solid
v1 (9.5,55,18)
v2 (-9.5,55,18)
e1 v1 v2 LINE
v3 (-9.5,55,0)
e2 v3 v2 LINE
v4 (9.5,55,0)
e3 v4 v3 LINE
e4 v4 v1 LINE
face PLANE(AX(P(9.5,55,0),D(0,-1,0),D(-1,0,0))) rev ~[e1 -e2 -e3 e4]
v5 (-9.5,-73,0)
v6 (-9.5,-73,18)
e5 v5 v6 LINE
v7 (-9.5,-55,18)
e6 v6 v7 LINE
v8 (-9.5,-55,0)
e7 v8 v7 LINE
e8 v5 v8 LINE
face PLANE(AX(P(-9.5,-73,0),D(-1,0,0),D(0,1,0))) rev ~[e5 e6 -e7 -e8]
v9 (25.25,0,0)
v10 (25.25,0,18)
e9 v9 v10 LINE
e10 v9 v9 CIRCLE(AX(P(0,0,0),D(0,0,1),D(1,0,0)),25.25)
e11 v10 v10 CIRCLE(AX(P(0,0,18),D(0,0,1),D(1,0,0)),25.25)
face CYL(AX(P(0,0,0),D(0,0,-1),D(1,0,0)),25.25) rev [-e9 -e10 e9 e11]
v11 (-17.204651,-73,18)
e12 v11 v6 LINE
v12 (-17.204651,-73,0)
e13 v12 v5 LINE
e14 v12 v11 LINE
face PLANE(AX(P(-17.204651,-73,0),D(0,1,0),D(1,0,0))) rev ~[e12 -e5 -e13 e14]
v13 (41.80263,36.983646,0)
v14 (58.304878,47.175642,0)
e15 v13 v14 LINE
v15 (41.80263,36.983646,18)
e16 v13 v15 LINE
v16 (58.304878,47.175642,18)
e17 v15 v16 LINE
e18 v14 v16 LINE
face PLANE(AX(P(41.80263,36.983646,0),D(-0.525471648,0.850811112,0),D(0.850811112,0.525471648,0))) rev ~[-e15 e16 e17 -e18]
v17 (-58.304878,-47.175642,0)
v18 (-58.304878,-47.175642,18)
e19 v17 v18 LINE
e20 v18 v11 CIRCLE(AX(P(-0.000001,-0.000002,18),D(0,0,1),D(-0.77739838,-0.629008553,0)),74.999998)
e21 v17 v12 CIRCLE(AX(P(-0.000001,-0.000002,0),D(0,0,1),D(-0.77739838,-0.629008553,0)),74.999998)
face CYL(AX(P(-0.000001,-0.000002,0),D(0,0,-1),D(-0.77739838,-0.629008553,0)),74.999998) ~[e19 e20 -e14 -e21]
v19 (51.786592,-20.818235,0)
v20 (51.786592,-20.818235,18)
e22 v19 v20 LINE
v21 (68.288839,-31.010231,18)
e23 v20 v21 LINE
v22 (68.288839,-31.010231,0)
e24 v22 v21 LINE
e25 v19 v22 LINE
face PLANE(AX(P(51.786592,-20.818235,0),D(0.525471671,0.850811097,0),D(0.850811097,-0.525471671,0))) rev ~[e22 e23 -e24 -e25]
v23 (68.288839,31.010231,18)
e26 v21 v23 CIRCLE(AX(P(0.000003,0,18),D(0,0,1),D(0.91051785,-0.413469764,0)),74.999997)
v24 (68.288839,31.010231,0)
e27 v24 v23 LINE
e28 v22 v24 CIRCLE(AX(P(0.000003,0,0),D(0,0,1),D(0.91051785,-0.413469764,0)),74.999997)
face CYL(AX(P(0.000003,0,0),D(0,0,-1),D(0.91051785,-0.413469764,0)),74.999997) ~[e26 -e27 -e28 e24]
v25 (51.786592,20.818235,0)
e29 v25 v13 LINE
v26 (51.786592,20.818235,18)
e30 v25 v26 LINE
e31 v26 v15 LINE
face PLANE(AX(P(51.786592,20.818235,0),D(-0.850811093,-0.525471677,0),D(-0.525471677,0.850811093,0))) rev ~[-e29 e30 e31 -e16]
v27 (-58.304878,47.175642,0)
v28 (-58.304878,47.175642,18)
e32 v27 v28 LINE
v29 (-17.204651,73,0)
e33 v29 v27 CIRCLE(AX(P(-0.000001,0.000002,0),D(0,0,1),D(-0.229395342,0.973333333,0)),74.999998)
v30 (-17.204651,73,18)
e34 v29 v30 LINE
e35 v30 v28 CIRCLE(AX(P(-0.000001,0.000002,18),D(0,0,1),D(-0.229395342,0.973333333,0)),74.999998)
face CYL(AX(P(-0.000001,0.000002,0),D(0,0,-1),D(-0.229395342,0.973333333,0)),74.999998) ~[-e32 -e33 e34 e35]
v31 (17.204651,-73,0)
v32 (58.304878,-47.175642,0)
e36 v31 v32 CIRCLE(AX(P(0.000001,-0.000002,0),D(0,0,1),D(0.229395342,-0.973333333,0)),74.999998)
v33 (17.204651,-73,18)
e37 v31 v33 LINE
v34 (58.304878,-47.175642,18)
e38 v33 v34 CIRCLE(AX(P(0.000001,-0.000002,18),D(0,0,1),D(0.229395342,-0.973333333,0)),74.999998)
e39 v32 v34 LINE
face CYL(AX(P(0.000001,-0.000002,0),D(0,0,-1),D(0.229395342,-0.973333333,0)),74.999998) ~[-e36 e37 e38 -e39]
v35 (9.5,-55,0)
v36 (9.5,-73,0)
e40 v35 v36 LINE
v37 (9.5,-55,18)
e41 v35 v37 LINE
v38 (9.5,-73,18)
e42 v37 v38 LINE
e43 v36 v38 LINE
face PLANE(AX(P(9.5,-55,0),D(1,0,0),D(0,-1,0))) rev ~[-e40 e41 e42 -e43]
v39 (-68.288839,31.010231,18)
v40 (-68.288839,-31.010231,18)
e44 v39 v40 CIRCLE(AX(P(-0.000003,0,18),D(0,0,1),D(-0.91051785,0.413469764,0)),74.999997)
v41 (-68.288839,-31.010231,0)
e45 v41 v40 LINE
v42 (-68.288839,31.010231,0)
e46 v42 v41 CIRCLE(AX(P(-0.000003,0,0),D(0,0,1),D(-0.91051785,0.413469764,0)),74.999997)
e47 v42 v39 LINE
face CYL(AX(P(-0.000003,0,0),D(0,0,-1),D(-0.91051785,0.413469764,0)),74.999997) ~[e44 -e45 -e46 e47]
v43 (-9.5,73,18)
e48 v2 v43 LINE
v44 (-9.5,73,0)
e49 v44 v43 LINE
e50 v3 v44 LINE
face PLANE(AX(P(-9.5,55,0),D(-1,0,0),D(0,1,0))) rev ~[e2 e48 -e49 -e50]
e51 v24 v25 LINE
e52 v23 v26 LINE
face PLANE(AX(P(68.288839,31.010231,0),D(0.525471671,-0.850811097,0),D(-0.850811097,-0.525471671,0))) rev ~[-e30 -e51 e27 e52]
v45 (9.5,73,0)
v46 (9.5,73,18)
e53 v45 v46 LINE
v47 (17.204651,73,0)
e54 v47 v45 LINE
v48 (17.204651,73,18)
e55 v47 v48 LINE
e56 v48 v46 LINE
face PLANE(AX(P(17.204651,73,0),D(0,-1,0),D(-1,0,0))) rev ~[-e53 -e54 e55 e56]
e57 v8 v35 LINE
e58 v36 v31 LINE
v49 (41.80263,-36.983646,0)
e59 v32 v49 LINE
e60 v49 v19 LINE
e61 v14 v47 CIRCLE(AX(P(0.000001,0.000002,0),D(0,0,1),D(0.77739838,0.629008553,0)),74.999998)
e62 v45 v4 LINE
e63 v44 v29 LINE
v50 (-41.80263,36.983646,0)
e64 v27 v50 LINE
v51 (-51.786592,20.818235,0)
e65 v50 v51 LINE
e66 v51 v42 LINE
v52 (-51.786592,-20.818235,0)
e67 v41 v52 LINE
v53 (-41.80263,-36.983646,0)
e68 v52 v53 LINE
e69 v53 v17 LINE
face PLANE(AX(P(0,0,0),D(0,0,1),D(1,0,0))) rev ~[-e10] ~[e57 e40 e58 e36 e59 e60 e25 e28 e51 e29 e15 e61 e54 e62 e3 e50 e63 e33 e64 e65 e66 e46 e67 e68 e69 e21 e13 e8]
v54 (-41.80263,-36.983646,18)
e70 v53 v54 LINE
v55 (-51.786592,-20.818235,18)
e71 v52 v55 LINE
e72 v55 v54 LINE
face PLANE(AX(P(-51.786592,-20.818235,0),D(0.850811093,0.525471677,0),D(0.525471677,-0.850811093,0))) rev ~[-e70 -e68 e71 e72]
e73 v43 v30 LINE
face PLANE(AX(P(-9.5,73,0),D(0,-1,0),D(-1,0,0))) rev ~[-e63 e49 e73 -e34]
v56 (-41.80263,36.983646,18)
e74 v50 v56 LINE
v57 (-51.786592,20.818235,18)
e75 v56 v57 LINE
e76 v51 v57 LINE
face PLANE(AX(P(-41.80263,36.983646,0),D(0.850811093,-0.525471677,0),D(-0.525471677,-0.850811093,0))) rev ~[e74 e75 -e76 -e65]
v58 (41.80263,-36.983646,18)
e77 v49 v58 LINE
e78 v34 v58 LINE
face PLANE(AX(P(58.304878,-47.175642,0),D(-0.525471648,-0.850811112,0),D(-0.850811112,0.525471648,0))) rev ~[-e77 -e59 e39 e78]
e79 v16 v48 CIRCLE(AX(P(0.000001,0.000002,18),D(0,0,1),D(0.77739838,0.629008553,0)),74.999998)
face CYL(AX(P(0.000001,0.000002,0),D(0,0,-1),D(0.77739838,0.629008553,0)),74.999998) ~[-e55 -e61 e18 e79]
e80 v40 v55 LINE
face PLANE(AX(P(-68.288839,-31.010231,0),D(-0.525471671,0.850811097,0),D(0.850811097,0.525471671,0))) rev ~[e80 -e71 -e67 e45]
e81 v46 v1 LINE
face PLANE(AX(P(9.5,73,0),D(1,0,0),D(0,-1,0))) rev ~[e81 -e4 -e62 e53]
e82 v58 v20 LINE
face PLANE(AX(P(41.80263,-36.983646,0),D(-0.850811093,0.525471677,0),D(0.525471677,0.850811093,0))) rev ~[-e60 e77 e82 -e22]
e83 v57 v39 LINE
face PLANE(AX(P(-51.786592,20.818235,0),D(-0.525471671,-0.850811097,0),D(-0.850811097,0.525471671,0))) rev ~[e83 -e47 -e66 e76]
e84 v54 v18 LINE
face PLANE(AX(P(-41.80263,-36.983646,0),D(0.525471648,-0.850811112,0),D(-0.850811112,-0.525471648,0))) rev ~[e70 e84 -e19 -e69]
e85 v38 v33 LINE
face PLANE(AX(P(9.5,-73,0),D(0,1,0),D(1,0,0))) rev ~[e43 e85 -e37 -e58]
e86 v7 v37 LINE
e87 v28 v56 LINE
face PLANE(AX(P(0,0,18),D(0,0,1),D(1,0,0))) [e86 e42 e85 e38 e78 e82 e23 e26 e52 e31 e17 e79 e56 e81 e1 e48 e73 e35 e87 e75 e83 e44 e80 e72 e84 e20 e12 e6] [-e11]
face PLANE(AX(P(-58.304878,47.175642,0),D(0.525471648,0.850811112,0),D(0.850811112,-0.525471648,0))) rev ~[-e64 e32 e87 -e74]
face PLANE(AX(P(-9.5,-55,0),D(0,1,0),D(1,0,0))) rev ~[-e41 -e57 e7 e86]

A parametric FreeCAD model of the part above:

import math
import FreeCAD as App
import Part
import Sketcher
from FreeCAD import Vector
Q = App.Units.Quantity

doc = App.newDocument("Part")
params = doc.addObject("Spreadsheet::Sheet", "Params")
for row, (alias, value) in enumerate([
    ("sketch1_radius", "74.999998 mm"),
    ("sketch1_diameter", "50.5 mm"),
    ("sketch1_width", "19 mm"),
    ("sketch1_height", "18 mm"),
    ("sketch1_length", "19 mm"),
    ("pad1_length", "18 mm"),
], start=1):
    params.set(f"A{row}", alias)
    params.set(f"B{row}", "=" + value)
    params.setAlias(f"B{row}", alias)

body = doc.addObject("PartDesign::Body", "Body")

sketch1 = body.newObject("Sketcher::SketchObject", "Sketch")
sketch1.AttachmentSupport = (doc.getObject("XY_Plane"), [""])
sketch1.MapMode = "FlatFace"
sketch1.addGeometry([
    Part.LineSegment(Vector(-10, 73, 0), Vector(-17, 73, 0)),
    Part.ArcOfCircle(Part.Circle(Vector(0, 0, 0), Vector(0, 0, 1), 75), math.radians(103), math.radians(141)),
    Part.LineSegment(Vector(-58, 47, 0), Vector(-42, 37, 0)),
    Part.LineSegment(Vector(-42, 37, 0), Vector(-52, 21, 0)),
    Part.LineSegment(Vector(-52, 21, 0), Vector(-68, 31, 0)),
    Part.ArcOfCircle(Part.Circle(Vector(0, 0, 0), Vector(0, 0, 1), 75), math.radians(156), math.radians(204)),
    Part.LineSegment(Vector(-68, -31, 0), Vector(-52, -21, 0)),
    Part.LineSegment(Vector(-52, -21, 0), Vector(-42, -37, 0)),
    Part.LineSegment(Vector(-42, -37, 0), Vector(-58, -47, 0)),
    Part.ArcOfCircle(Part.Circle(Vector(0, 0, 0), Vector(0, 0, 1), 75), math.radians(-141), math.radians(-103)),
    Part.LineSegment(Vector(-17, -73, 0), Vector(-10, -73, 0)),
    Part.LineSegment(Vector(-10, -73, 0), Vector(-10, -55, 0)),
    Part.LineSegment(Vector(-10, -55, 0), Vector(10, -55, 0)),
    Part.LineSegment(Vector(10, -55, 0), Vector(10, -73, 0)),
    Part.LineSegment(Vector(10, -73, 0), Vector(17, -73, 0)),
    Part.ArcOfCircle(Part.Circle(Vector(0, 0, 0), Vector(0, 0, 1), 75), math.radians(-77), math.radians(-39)),
    Part.LineSegment(Vector(58, -47, 0), Vector(42, -37, 0)),
    Part.LineSegment(Vector(42, -37, 0), Vector(52, -21, 0)),
    Part.LineSegment(Vector(52, -21, 0), Vector(68, -31, 0)),
    Part.ArcOfCircle(Part.Circle(Vector(0, 0, 0), Vector(0, 0, 1), 75), math.radians(-24), math.radians(24)),
    Part.LineSegment(Vector(68, 31, 0), Vector(52, 21, 0)),
    Part.LineSegment(Vector(52, 21, 0), Vector(42, 37, 0)),
    Part.LineSegment(Vector(42, 37, 0), Vector(58, 47, 0)),
    Part.ArcOfCircle(Part.Circle(Vector(0, 0, 0), Vector(0, 0, 1), 75), math.radians(39), math.radians(77)),
    Part.LineSegment(Vector(17, 73, 0), Vector(10, 73, 0)),
    Part.LineSegment(Vector(10, 73, 0), Vector(10, 55, 0)),
    Part.LineSegment(Vector(10, 55, 0), Vector(-10, 55, 0)),
    Part.LineSegment(Vector(-10, 55, 0), Vector(-10, 73, 0)),
    Part.Circle(Vector(0, 0, 0), Vector(0, 0, 1), 25),
], False)
sketch1.addConstraint([
    Sketcher.Constraint("Coincident", 0, 2, 1, 1),
    Sketcher.Constraint("Coincident", 1, 2, 2, 1),
    Sketcher.Constraint("Coincident", 2, 2, 3, 1),
    Sketcher.Constraint("Coincident", 3, 2, 4, 1),
    Sketcher.Constraint("Coincident", 4, 2, 5, 1),
    Sketcher.Constraint("Coincident", 5, 2, 6, 1),
    Sketcher.Constraint("Coincident", 6, 2, 7, 1),
    Sketcher.Constraint("Coincident", 7, 2, 8, 1),
    Sketcher.Constraint("Coincident", 8, 2, 9, 1),
    Sketcher.Constraint("Coincident", 9, 2, 10, 1),
    Sketcher.Constraint("Coincident", 10, 2, 11, 1),
    Sketcher.Constraint("Coincident", 11, 2, 12, 1),
    Sketcher.Constraint("Coincident", 12, 2, 13, 1),
    Sketcher.Constraint("Coincident", 13, 2, 14, 1),
    Sketcher.Constraint("Coincident", 14, 2, 15, 1),
    Sketcher.Constraint("Coincident", 15, 2, 16, 1),
    Sketcher.Constraint("Coincident", 16, 2, 17, 1),
    Sketcher.Constraint("Coincident", 17, 2, 18, 1),
    Sketcher.Constraint("Coincident", 18, 2, 19, 1),
    Sketcher.Constraint("Coincident", 19, 2, 20, 1),
    Sketcher.Constraint("Coincident", 20, 2, 21, 1),
    Sketcher.Constraint("Coincident", 21, 2, 22, 1),
    Sketcher.Constraint("Coincident", 22, 2, 23, 1),
    Sketcher.Constraint("Coincident", 23, 2, 24, 1),
    Sketcher.Constraint("Coincident", 24, 2, 25, 1),
    Sketcher.Constraint("Coincident", 25, 2, 26, 1),
    Sketcher.Constraint("Coincident", 26, 2, 27, 1),
    Sketcher.Constraint("Coincident", 27, 2, 0, 1),
    Sketcher.Constraint("Horizontal", 0),
    Sketcher.Constraint("Horizontal", 10),
    Sketcher.Constraint("Vertical", 11),
    Sketcher.Constraint("Horizontal", 12),
    Sketcher.Constraint("Vertical", 13),
    Sketcher.Constraint("Horizontal", 14),
    Sketcher.Constraint("Horizontal", 24),
    Sketcher.Constraint("Vertical", 25),
    Sketcher.Constraint("Horizontal", 26),
    Sketcher.Constraint("Vertical", 27),
    Sketcher.Constraint("Coincident", 1, 3, -1, 1),
    Sketcher.Constraint("Coincident", 5, 3, -1, 1),
    Sketcher.Constraint("Coincident", 9, 3, -1, 1),
    Sketcher.Constraint("Coincident", 15, 3, -1, 1),
    Sketcher.Constraint("Coincident", 19, 3, -1, 1),
    Sketcher.Constraint("Coincident", 23, 3, -1, 1),
    Sketcher.Constraint("Coincident", 28, 3, -1, 1),
    Sketcher.Constraint("Equal", 1, 5),
    Sketcher.Constraint("Equal", 5, 9),
    Sketcher.Constraint("Equal", 9, 15),
    Sketcher.Constraint("Equal", 15, 19),
    Sketcher.Constraint("Equal", 19, 23),
    Sketcher.Constraint("Symmetric", 2, 2, 16, 2, -1, 1),
    Sketcher.Constraint("Symmetric", 3, 2, 17, 2, -1, 1),
    Sketcher.Constraint("Symmetric", 6, 2, 20, 2, -1, 1),
    Sketcher.Constraint("Symmetric", 7, 2, 21, 2, -1, 1),
    Sketcher.Constraint("Symmetric", 10, 2, 24, 2, -1, 1),
    Sketcher.Constraint("Symmetric", 12, 2, 26, 2, -1, 1),
    Sketcher.Constraint("Symmetric", 10, 2, 13, 2, -2),
    Sketcher.Constraint("Symmetric", 7, 2, 16, 2, -2),
    Sketcher.Constraint("Symmetric", 6, 2, 17, 2, -2),
    Sketcher.Constraint("Perpendicular", 2, 3),
    Sketcher.Constraint("Perpendicular", 3, 4),
    Sketcher.Constraint("Perpendicular", 6, 7),
    Sketcher.Constraint("Perpendicular", 7, 8),
    Sketcher.Constraint("Parallel", 4, 16),
    Sketcher.Constraint("Perpendicular", 17, 18),
    Sketcher.Constraint("Parallel", 8, 20),
    Sketcher.Constraint("Perpendicular", 21, 22),
    Sketcher.Constraint("Horizontal", 0, 2, 23, 2),
    Sketcher.Constraint("Equal", 2, 4),
    Sketcher.Constraint("Radius", 1, 74.999998),
    Sketcher.Constraint("Diameter", 28, 50.5),
    Sketcher.Constraint("DistanceX", 12, 1, 12, 2, 19.0),
    Sketcher.Constraint("DistanceY", 11, 1, 11, 2, 18.0),
    Sketcher.Constraint("Distance", 3, 19.0),
    Sketcher.Constraint("DistanceY", -1, 1, 0, 2, 73.0),
    Sketcher.Constraint("Angle", 2, Q("-31.7 deg")),
    Sketcher.Constraint("Distance", 2, 19.395901),
])
sketch1.setExpression("Constraints[69]", "Params.sketch1_radius")
sketch1.setExpression("Constraints[70]", "Params.sketch1_diameter")
sketch1.setExpression("Constraints[71]", "Params.sketch1_width")
sketch1.setExpression("Constraints[72]", "Params.sketch1_height")
sketch1.setExpression("Constraints[73]", "Params.sketch1_length")
pad1 = body.newObject("PartDesign::Pad", "Pad")
pad1.Profile = sketch1
pad1.setExpression("Length", "Params.pad1_length")

doc.recompute()
